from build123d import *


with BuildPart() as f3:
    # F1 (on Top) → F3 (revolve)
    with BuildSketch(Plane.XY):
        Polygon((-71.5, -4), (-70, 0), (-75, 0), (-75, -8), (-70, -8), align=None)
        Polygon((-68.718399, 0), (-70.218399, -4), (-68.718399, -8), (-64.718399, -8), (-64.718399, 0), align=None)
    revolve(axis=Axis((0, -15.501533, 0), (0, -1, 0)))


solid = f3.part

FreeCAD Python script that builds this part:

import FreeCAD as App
import Part
import Sketcher
from FreeCAD import Vector

doc = App.newDocument("Part")
body = doc.addObject("PartDesign::Body", "Body")
body.AllowCompound = True

sketch1 = doc.addObject("Sketcher::SketchObject", "Sketch")
body.addObject(sketch1)
sketch1.AttachmentSupport = (doc.XY_Plane, [""])
sketch1.MapMode = "FlatFace"
sketch1.addGeometry(Part.LineSegment(Vector(-71.5, -4, 0), Vector(-70, 0, 0)), False)
sketch1.addGeometry(Part.LineSegment(Vector(-70, 0, 0), Vector(-75, 0, 0)), False)
sketch1.addGeometry(Part.LineSegment(Vector(-75, 0, 0), Vector(-75, -8, 0)), False)
sketch1.addGeometry(Part.LineSegment(Vector(-75, -8, 0), Vector(-70, -8, 0)), False)
sketch1.addGeometry(Part.LineSegment(Vector(-70, -8, 0), Vector(-71.5, -4, 0)), False)
sketch1.addGeometry(Part.LineSegment(Vector(-68.7, 0, 0), Vector(-70.2, -4, 0)), False)
sketch1.addGeometry(Part.LineSegment(Vector(-70.2, -4, 0), Vector(-68.7, -8, 0)), False)
sketch1.addGeometry(Part.LineSegment(Vector(-68.7, -8, 0), Vector(-64.7, -8, 0)), False)
sketch1.addGeometry(Part.LineSegment(Vector(-64.7, -8, 0), Vector(-64.7, 0, 0)), False)
sketch1.addGeometry(Part.LineSegment(Vector(-64.7, 0, 0), Vector(-68.7, 0, 0)), False)
sketch1.addConstraint(Sketcher.Constraint("Coincident", 0, 2, 1, 1))
sketch1.addConstraint(Sketcher.Constraint("Coincident", 1, 2, 2, 1))
sketch1.addConstraint(Sketcher.Constraint("Coincident", 2, 2, 3, 1))
sketch1.addConstraint(Sketcher.Constraint("Coincident", 3, 2, 4, 1))
sketch1.addConstraint(Sketcher.Constraint("Coincident", 4, 2, 0, 1))
sketch1.addConstraint(Sketcher.Constraint("Coincident", 5, 2, 6, 1))
sketch1.addConstraint(Sketcher.Constraint("Coincident", 6, 2, 7, 1))
sketch1.addConstraint(Sketcher.Constraint("Coincident", 7, 2, 8, 1))
sketch1.addConstraint(Sketcher.Constraint("Coincident", 8, 2, 9, 1))
sketch1.addConstraint(Sketcher.Constraint("Coincident", 9, 2, 5, 1))
sketch1.addConstraint(Sketcher.Constraint("Horizontal", 1))
sketch1.addConstraint(Sketcher.Constraint("Vertical", 2))
sketch1.addConstraint(Sketcher.Constraint("Horizontal", 3))
sketch1.addConstraint(Sketcher.Constraint("Horizontal", 7))
sketch1.addConstraint(Sketcher.Constraint("Vertical", 8))
sketch1.addConstraint(Sketcher.Constraint("Horizontal", 9))
sketch1.addConstraint(Sketcher.Constraint("PointOnObject", 0, 2, -1))
sketch1.addConstraint(Sketcher.Constraint("PointOnObject", 8, 2, -1))
sketch1.addConstraint(Sketcher.Constraint("Parallel", 0, 5))
sketch1.addConstraint(Sketcher.Constraint("Parallel", 4, 6))
sketch1.addConstraint(Sketcher.Constraint("Horizontal", 4, 2, 5, 2))
sketch1.addConstraint(Sketcher.Constraint("Horizontal", 3, 2, 6, 2))
sketch1.addConstraint(Sketcher.Constraint("Vertical", 0, 2, 3, 2))
sketch1.addConstraint(Sketcher.Constraint("Equal", 0, 4))
sketch1.addConstraint(Sketcher.Constraint("DistanceX", 1, 2, 1, 1, 5.0))
sketch1.addConstraint(Sketcher.Constraint("DistanceX", 7, 1, 7, 2, 4.0))
sketch1.addConstraint(Sketcher.Constraint("DistanceY", 2, 2, 2, 1, 8.0))
sketch1.addConstraint(Sketcher.Constraint("DistanceX", 0, 2, -1, 1, 70.0))
sketch1.addConstraint(Sketcher.Constraint("DistanceX", 4, 2, -1, 1, 71.5))
sketch1.addConstraint(Sketcher.Constraint("DistanceX", 5, 2, -1, 1, 70.218399))
revolution = doc.addObject("PartDesign::Revolution", "Revolution")
body.addObject(revolution)
revolution.Profile = sketch1
revolution.ReferenceAxis = (sketch1, ["V_Axis"])
revolution.Angle = 360

doc.recompute()
